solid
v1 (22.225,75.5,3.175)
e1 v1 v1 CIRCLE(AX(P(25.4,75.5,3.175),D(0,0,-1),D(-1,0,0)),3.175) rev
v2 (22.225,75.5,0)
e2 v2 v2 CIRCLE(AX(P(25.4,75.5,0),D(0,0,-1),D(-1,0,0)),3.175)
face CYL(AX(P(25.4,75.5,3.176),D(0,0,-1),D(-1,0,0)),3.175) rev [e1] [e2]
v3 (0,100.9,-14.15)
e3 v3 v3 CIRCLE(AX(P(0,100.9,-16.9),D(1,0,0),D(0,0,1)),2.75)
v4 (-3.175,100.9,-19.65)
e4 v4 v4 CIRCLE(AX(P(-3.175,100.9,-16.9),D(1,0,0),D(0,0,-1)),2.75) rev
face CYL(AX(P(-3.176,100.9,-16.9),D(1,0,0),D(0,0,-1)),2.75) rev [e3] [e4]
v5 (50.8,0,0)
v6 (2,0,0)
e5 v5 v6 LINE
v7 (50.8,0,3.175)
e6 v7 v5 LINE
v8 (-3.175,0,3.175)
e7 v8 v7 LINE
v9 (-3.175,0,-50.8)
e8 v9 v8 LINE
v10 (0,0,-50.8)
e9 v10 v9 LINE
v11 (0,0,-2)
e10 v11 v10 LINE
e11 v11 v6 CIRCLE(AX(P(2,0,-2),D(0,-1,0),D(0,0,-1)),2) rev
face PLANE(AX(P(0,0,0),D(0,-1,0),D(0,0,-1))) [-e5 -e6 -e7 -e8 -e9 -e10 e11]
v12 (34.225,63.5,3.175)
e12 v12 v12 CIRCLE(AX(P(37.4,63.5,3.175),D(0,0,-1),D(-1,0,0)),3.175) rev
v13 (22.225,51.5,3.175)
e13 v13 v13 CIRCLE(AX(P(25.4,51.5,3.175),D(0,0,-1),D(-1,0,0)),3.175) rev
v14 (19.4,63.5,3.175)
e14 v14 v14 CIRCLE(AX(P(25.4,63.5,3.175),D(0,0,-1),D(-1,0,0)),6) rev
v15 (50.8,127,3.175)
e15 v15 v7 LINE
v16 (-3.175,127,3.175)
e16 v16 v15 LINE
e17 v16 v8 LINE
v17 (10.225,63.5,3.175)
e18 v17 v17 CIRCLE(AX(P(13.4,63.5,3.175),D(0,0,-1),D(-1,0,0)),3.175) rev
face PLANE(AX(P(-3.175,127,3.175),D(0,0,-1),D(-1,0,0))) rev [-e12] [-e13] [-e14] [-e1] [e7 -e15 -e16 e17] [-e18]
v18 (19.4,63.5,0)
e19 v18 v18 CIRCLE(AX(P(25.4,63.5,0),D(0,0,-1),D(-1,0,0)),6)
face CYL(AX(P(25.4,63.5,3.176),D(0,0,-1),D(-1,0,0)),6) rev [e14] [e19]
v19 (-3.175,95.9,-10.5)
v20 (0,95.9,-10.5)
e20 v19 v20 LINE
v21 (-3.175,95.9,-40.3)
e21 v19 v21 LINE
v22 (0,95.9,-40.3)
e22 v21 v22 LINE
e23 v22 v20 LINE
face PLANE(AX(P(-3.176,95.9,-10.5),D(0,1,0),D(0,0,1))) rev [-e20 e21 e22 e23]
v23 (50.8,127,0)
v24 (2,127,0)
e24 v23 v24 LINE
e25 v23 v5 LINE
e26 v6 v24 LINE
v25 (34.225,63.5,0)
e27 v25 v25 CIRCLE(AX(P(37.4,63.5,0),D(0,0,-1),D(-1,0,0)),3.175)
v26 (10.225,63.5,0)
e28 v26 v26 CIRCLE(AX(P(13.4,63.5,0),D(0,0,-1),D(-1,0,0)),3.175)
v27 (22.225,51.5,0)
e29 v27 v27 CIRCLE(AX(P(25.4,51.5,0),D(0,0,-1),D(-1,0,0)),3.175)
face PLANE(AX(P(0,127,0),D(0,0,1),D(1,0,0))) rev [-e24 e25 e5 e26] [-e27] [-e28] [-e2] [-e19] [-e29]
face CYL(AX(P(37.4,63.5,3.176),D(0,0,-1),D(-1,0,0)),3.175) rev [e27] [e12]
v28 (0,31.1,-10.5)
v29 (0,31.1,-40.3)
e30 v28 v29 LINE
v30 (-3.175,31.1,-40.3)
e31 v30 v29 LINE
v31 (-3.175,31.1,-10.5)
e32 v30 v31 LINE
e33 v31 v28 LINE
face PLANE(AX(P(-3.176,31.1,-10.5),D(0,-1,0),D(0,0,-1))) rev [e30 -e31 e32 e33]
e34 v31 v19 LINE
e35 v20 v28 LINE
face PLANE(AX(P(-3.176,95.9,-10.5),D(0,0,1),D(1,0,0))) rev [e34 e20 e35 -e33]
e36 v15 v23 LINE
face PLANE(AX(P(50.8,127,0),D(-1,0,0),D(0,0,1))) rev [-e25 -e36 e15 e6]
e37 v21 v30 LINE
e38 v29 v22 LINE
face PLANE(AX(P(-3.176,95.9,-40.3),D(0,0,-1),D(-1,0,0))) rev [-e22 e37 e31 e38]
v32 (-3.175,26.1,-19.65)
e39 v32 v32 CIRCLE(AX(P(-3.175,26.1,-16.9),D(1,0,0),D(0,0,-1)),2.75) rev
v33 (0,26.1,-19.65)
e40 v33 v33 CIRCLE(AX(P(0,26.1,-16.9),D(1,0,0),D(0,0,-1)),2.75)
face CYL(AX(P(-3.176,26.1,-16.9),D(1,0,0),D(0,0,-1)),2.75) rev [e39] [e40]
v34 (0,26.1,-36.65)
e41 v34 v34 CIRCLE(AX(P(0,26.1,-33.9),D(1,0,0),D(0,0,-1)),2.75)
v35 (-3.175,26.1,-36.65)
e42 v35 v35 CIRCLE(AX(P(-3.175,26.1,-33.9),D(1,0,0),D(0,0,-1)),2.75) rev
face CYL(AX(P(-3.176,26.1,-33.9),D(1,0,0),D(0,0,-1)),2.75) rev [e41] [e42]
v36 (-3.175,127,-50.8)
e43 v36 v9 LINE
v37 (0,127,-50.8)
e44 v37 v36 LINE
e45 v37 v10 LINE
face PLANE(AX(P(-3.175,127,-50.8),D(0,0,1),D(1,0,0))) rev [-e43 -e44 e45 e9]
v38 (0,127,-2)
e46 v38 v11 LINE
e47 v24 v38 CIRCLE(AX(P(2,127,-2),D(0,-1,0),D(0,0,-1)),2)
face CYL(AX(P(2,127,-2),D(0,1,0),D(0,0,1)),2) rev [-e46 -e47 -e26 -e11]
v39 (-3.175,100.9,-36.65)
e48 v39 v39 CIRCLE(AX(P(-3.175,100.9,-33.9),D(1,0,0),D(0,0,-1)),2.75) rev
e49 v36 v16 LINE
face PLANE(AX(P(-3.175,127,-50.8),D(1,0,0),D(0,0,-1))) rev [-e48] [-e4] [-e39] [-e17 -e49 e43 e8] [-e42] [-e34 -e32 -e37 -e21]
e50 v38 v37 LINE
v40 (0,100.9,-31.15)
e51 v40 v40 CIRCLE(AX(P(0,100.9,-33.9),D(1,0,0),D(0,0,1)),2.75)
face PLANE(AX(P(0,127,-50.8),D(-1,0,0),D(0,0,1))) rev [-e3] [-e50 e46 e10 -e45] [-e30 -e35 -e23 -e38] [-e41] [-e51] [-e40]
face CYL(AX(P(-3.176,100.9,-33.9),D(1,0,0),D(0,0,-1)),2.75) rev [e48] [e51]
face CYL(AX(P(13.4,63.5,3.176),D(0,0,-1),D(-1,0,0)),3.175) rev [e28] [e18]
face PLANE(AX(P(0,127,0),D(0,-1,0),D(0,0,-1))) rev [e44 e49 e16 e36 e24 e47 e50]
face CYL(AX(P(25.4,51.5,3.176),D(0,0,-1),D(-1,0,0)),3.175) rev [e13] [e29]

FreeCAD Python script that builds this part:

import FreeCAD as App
import Part
import Sketcher

V = App.Vector


def edges_at(feature, points):
    """Names of the edges that pass closest to the given points."""
    edges = feature.Shape.Edges
    near = lambda p: min(range(len(edges)), key=lambda i: edges[i].distToShape(Part.Vertex(*p))[0])
    return sorted({f"Edge{near(p) + 1}" for p in points})

doc = App.newDocument("Part")
params = doc.addObject("Spreadsheet::Sheet", "Params")
for row, (alias, value) in enumerate([
    ("sketch1_width", "50.8 mm"),
    ("pad1_length", "127 mm"),
    ("sketch2_diameter", "12 mm"),
    ("sketch3_diameter", "6.35 mm"),
    ("sketch4_diameter", "6.35 mm"),
    ("sketch5_diameter", "6.35 mm"),
    ("sketch6_diameter", "6.35 mm"),
    ("sketch7_diameter", "5.5 mm"),
    ("sketch8_diameter", "5.5 mm"),
    ("sketch9_diameter", "5.5 mm"),
    ("sketch10_diameter", "5.5 mm"),
    ("sketch11_width", "64.8 mm"),
    ("sketch11_height", "29.8 mm"),
    ("fillet_radius", "2 mm"),
], start=1):
    params.set(f"A{row}", alias)
    params.set(f"B{row}", "=" + value)
    params.setAlias(f"B{row}", alias)

body = doc.addObject("PartDesign::Body", "Body")

# Sketch on XZ plane
sketch1 = doc.addObject("Sketcher::SketchObject", "Sketch")
body.addObject(sketch1)
sketch1.AttachmentSupport = (doc.XZ_Plane, [""])
sketch1.MapMode = "FlatFace"
sketch1.addGeometry([
    Part.LineSegment(V(0, 0, 0), V(0, -50.8, 0)),  # 0
    Part.LineSegment(V(0, -50.8, 0), V(-3.175, -50.8, 0)),  # 1
    Part.LineSegment(V(-3.175, -50.8, 0), V(-3.175, 3.175, 0)),  # 2
    Part.LineSegment(V(-3.175, 3.175, 0), V(50.8, 3.175, 0)),  # 3
    Part.LineSegment(V(50.8, 3.175, 0), V(50.8, 0, 0)),  # 4
    Part.LineSegment(V(50.8, 0, 0), V(0, 0, 0)),  # 5
], False)
sketch1.addConstraint([
    Sketcher.Constraint("Coincident", 0, 2, 1, 1),
    Sketcher.Constraint("Coincident", 1, 2, 2, 1),
    Sketcher.Constraint("Coincident", 2, 2, 3, 1),
    Sketcher.Constraint("Coincident", 3, 2, 4, 1),
    Sketcher.Constraint("Coincident", 4, 2, 5, 1),
    Sketcher.Constraint("Coincident", 5, 2, 0, 1),
    Sketcher.Constraint("Vertical", 0),
    Sketcher.Constraint("Horizontal", 1),
    Sketcher.Constraint("Vertical", 2),
    Sketcher.Constraint("Horizontal", 3),
    Sketcher.Constraint("Vertical", 4),
    Sketcher.Constraint("Horizontal", 5),
    Sketcher.Constraint("Coincident", 5, 2, -1, 1),
    Sketcher.Constraint("Equal", 5, 0),
    Sketcher.Constraint("Equal", 3, 2),
    Sketcher.Constraint("DistanceX", 5, 2, 5, 1, 50.8),
    Sketcher.Constraint("DistanceX", 1, 2, 1, 1, 3.175),
])
sketch1.setExpression("Constraints[15]", "Params.sketch1_width")
pad1 = doc.addObject("PartDesign::Pad", "Pad")
body.addObject(pad1)
pad1.Profile = sketch1
pad1.setExpression("Length", "Params.pad1_length")
pad1.Reversed = True

# Sketch on XY plane
sketch2 = doc.addObject("Sketcher::SketchObject", "Sketch001")
body.addObject(sketch2)
sketch2.AttachmentSupport = (doc.XY_Plane, [""])
sketch2.MapMode = "FlatFace"
sketch2.addGeometry(Part.Circle(V(25.4, 63.5, 0), V(0, 0, 1), 6), False)
sketch2.addConstraint([
    Sketcher.Constraint("Diameter", 0, 12.0),
    Sketcher.Constraint("DistanceX", -1, 1, 0, 3, 25.4),
    Sketcher.Constraint("DistanceY", -1, 1, 0, 3, 63.5),
])
sketch2.setExpression("Constraints[0]", "Params.sketch2_diameter")
pocket1 = doc.addObject("PartDesign::Pocket", "Pocket")
body.addObject(pocket1)
pocket1.Profile = sketch2
pocket1.Type = "UpToFirst"
pocket1.Reversed = True

# Sketch on XY plane
sketch3 = doc.addObject("Sketcher::SketchObject", "Sketch002")
body.addObject(sketch3)
sketch3.AttachmentSupport = (doc.XY_Plane, [""])
sketch3.MapMode = "FlatFace"
sketch3.addGeometry(Part.Circle(V(25.4, 75.5, 0), V(0, 0, 1), 3.175), False)
sketch3.addConstraint([
    Sketcher.Constraint("Diameter", 0, 6.35),
    Sketcher.Constraint("DistanceX", -1, 1, 0, 3, 25.4),
    Sketcher.Constraint("DistanceY", -1, 1, 0, 3, 75.5),
])
sketch3.setExpression("Constraints[0]", "Params.sketch3_diameter")
pocket2 = doc.addObject("PartDesign::Pocket", "Pocket001")
body.addObject(pocket2)
pocket2.Profile = sketch3
pocket2.Type = "UpToFirst"
pocket2.Reversed = True

# Sketch on XY plane
sketch4 = doc.addObject("Sketcher::SketchObject", "Sketch003")
body.addObject(sketch4)
sketch4.AttachmentSupport = (doc.XY_Plane, [""])
sketch4.MapMode = "FlatFace"
sketch4.addGeometry(Part.Circle(V(13.4, 63.5, 0), V(0, 0, 1), 3.175), False)
sketch4.addConstraint([
    Sketcher.Constraint("Diameter", 0, 6.35),
    Sketcher.Constraint("DistanceX", -1, 1, 0, 3, 13.4),
    Sketcher.Constraint("DistanceY", -1, 1, 0, 3, 63.5),
])
sketch4.setExpression("Constraints[0]", "Params.sketch4_diameter")
pocket3 = doc.addObject("PartDesign::Pocket", "Pocket002")
body.addObject(pocket3)
pocket3.Profile = sketch4
pocket3.Type = "UpToFirst"
pocket3.Reversed = True

# Sketch on XY plane
sketch5 = doc.addObject("Sketcher::SketchObject", "Sketch004")
body.addObject(sketch5)
sketch5.AttachmentSupport = (doc.XY_Plane, [""])
sketch5.MapMode = "FlatFace"
sketch5.addGeometry(Part.Circle(V(25.4, 51.5, 0), V(0, 0, 1), 3.175), False)
sketch5.addConstraint([
    Sketcher.Constraint("Diameter", 0, 6.35),
    Sketcher.Constraint("DistanceX", -1, 1, 0, 3, 25.4),
    Sketcher.Constraint("DistanceY", -1, 1, 0, 3, 51.5),
])
sketch5.setExpression("Constraints[0]", "Params.sketch5_diameter")
pocket4 = doc.addObject("PartDesign::Pocket", "Pocket003")
body.addObject(pocket4)
pocket4.Profile = sketch5
pocket4.Type = "UpToFirst"
pocket4.Reversed = True

# Sketch on XY plane
sketch6 = doc.addObject("Sketcher::SketchObject", "Sketch005")
body.addObject(sketch6)
sketch6.AttachmentSupport = (doc.XY_Plane, [""])
sketch6.MapMode = "FlatFace"
sketch6.addGeometry(Part.Circle(V(37.4, 63.5, 0), V(0, 0, 1), 3.175), False)
sketch6.addConstraint([
    Sketcher.Constraint("Diameter", 0, 6.35),
    Sketcher.Constraint("DistanceX", -1, 1, 0, 3, 37.4),
    Sketcher.Constraint("DistanceY", -1, 1, 0, 3, 63.5),
])
sketch6.setExpression("Constraints[0]", "Params.sketch6_diameter")
pocket5 = doc.addObject("PartDesign::Pocket", "Pocket004")
body.addObject(pocket5)
pocket5.Profile = sketch6
pocket5.Type = "UpToFirst"
pocket5.Reversed = True

# Sketch on YZ plane
sketch7 = doc.addObject("Sketcher::SketchObject", "Sketch006")
body.addObject(sketch7)
sketch7.AttachmentSupport = (doc.YZ_Plane, [""])
sketch7.MapMode = "FlatFace"
sketch7.addGeometry(Part.Circle(V(100.9, -33.9, 0), V(0, 0, 1), 2.75), False)
sketch7.addConstraint([
    Sketcher.Constraint("Diameter", 0, 5.5),
    Sketcher.Constraint("DistanceX", -1, 1, 0, 3, 100.9),
    Sketcher.Constraint("DistanceY", 0, 3, -1, 1, 33.9),
])
sketch7.setExpression("Constraints[0]", "Params.sketch7_diameter")
pocket6 = doc.addObject("PartDesign::Pocket", "Pocket005")
body.addObject(pocket6)
pocket6.Profile = sketch7
pocket6.Type = "UpToFirst"

# Sketch on YZ plane
sketch8 = doc.addObject("Sketcher::SketchObject", "Sketch007")
body.addObject(sketch8)
sketch8.AttachmentSupport = (doc.YZ_Plane, [""])
sketch8.MapMode = "FlatFace"
sketch8.addGeometry(Part.Circle(V(100.9, -16.9, 0), V(0, 0, 1), 2.75), False)
sketch8.addConstraint([
    Sketcher.Constraint("Diameter", 0, 5.5),
    Sketcher.Constraint("DistanceX", -1, 1, 0, 3, 100.9),
    Sketcher.Constraint("DistanceY", 0, 3, -1, 1, 16.9),
])
sketch8.setExpression("Constraints[0]", "Params.sketch8_diameter")
pocket7 = doc.addObject("PartDesign::Pocket", "Pocket006")
body.addObject(pocket7)
pocket7.Profile = sketch8
pocket7.Type = "UpToFirst"

# Sketch on YZ plane
sketch9 = doc.addObject("Sketcher::SketchObject", "Sketch008")
body.addObject(sketch9)
sketch9.AttachmentSupport = (doc.YZ_Plane, [""])
sketch9.MapMode = "FlatFace"
sketch9.addGeometry(Part.Circle(V(26.1, -16.9, 0), V(0, 0, 1), 2.75), False)
sketch9.addConstraint([
    Sketcher.Constraint("Diameter", 0, 5.5),
    Sketcher.Constraint("DistanceX", -1, 1, 0, 3, 26.1),
    Sketcher.Constraint("DistanceY", 0, 3, -1, 1, 16.9),
])
sketch9.setExpression("Constraints[0]", "Params.sketch9_diameter")
pocket8 = doc.addObject("PartDesign::Pocket", "Pocket007")
body.addObject(pocket8)
pocket8.Profile = sketch9
pocket8.Type = "UpToFirst"

# Sketch on YZ plane
sketch10 = doc.addObject("Sketcher::SketchObject", "Sketch009")
body.addObject(sketch10)
sketch10.AttachmentSupport = (doc.YZ_Plane, [""])
sketch10.MapMode = "FlatFace"
sketch10.addGeometry(Part.Circle(V(26.1, -33.9, 0), V(0, 0, 1), 2.75), False)
sketch10.addConstraint([
    Sketcher.Constraint("Diameter", 0, 5.5),
    Sketcher.Constraint("DistanceX", -1, 1, 0, 3, 26.1),
    Sketcher.Constraint("DistanceY", 0, 3, -1, 1, 33.9),
])
sketch10.setExpression("Constraints[0]", "Params.sketch10_diameter")
pocket9 = doc.addObject("PartDesign::Pocket", "Pocket008")
body.addObject(pocket9)
pocket9.Profile = sketch10
pocket9.Type = "UpToFirst"

# Sketch on YZ plane
sketch11 = doc.addObject("Sketcher::SketchObject", "Sketch010")
body.addObject(sketch11)
sketch11.AttachmentSupport = (doc.YZ_Plane, [""])
sketch11.MapMode = "FlatFace"
sketch11.addGeometry([
    Part.LineSegment(V(95.9, -10.5, 0), V(31.1, -10.5, 0)),
    Part.LineSegment(V(31.1, -10.5, 0), V(31.1, -40.3, 0)),
    Part.LineSegment(V(31.1, -40.3, 0), V(95.9, -40.3, 0)),
    Part.LineSegment(V(95.9, -40.3, 0), V(95.9, -10.5, 0)),
], False)
sketch11.addConstraint([
    Sketcher.Constraint("Coincident", 0, 2, 1, 1),
    Sketcher.Constraint("Coincident", 1, 2, 2, 1),
    Sketcher.Constraint("Coincident", 2, 2, 3, 1),
    Sketcher.Constraint("Coincident", 3, 2, 0, 1),
    Sketcher.Constraint("Horizontal", 0),
    Sketcher.Constraint("Vertical", 1),
    Sketcher.Constraint("Horizontal", 2),
    Sketcher.Constraint("Vertical", 3),
    Sketcher.Constraint("DistanceX", 0, 2, 0, 1, 64.8),
    Sketcher.Constraint("DistanceY", 1, 2, 1, 1, 29.8),
    Sketcher.Constraint("DistanceX", -1, 1, 0, 2, 31.1),
    Sketcher.Constraint("DistanceY", 0, 2, -1, 1, 10.5),
])
sketch11.setExpression("Constraints[8]", "Params.sketch11_width")
sketch11.setExpression("Constraints[9]", "Params.sketch11_height")
pocket10 = doc.addObject("PartDesign::Pocket", "Pocket009")
body.addObject(pocket10)
pocket10.Profile = sketch11
pocket10.Type = "UpToFirst"
doc.recompute()

fillet = doc.addObject("PartDesign::Fillet", "Fillet")
body.addObject(fillet)
fillet.Base = (pocket10, edges_at(pocket10, [(0, 63.5, 0)]))
fillet.setExpression("Radius", "Params.fillet_radius")

doc.recompute()
